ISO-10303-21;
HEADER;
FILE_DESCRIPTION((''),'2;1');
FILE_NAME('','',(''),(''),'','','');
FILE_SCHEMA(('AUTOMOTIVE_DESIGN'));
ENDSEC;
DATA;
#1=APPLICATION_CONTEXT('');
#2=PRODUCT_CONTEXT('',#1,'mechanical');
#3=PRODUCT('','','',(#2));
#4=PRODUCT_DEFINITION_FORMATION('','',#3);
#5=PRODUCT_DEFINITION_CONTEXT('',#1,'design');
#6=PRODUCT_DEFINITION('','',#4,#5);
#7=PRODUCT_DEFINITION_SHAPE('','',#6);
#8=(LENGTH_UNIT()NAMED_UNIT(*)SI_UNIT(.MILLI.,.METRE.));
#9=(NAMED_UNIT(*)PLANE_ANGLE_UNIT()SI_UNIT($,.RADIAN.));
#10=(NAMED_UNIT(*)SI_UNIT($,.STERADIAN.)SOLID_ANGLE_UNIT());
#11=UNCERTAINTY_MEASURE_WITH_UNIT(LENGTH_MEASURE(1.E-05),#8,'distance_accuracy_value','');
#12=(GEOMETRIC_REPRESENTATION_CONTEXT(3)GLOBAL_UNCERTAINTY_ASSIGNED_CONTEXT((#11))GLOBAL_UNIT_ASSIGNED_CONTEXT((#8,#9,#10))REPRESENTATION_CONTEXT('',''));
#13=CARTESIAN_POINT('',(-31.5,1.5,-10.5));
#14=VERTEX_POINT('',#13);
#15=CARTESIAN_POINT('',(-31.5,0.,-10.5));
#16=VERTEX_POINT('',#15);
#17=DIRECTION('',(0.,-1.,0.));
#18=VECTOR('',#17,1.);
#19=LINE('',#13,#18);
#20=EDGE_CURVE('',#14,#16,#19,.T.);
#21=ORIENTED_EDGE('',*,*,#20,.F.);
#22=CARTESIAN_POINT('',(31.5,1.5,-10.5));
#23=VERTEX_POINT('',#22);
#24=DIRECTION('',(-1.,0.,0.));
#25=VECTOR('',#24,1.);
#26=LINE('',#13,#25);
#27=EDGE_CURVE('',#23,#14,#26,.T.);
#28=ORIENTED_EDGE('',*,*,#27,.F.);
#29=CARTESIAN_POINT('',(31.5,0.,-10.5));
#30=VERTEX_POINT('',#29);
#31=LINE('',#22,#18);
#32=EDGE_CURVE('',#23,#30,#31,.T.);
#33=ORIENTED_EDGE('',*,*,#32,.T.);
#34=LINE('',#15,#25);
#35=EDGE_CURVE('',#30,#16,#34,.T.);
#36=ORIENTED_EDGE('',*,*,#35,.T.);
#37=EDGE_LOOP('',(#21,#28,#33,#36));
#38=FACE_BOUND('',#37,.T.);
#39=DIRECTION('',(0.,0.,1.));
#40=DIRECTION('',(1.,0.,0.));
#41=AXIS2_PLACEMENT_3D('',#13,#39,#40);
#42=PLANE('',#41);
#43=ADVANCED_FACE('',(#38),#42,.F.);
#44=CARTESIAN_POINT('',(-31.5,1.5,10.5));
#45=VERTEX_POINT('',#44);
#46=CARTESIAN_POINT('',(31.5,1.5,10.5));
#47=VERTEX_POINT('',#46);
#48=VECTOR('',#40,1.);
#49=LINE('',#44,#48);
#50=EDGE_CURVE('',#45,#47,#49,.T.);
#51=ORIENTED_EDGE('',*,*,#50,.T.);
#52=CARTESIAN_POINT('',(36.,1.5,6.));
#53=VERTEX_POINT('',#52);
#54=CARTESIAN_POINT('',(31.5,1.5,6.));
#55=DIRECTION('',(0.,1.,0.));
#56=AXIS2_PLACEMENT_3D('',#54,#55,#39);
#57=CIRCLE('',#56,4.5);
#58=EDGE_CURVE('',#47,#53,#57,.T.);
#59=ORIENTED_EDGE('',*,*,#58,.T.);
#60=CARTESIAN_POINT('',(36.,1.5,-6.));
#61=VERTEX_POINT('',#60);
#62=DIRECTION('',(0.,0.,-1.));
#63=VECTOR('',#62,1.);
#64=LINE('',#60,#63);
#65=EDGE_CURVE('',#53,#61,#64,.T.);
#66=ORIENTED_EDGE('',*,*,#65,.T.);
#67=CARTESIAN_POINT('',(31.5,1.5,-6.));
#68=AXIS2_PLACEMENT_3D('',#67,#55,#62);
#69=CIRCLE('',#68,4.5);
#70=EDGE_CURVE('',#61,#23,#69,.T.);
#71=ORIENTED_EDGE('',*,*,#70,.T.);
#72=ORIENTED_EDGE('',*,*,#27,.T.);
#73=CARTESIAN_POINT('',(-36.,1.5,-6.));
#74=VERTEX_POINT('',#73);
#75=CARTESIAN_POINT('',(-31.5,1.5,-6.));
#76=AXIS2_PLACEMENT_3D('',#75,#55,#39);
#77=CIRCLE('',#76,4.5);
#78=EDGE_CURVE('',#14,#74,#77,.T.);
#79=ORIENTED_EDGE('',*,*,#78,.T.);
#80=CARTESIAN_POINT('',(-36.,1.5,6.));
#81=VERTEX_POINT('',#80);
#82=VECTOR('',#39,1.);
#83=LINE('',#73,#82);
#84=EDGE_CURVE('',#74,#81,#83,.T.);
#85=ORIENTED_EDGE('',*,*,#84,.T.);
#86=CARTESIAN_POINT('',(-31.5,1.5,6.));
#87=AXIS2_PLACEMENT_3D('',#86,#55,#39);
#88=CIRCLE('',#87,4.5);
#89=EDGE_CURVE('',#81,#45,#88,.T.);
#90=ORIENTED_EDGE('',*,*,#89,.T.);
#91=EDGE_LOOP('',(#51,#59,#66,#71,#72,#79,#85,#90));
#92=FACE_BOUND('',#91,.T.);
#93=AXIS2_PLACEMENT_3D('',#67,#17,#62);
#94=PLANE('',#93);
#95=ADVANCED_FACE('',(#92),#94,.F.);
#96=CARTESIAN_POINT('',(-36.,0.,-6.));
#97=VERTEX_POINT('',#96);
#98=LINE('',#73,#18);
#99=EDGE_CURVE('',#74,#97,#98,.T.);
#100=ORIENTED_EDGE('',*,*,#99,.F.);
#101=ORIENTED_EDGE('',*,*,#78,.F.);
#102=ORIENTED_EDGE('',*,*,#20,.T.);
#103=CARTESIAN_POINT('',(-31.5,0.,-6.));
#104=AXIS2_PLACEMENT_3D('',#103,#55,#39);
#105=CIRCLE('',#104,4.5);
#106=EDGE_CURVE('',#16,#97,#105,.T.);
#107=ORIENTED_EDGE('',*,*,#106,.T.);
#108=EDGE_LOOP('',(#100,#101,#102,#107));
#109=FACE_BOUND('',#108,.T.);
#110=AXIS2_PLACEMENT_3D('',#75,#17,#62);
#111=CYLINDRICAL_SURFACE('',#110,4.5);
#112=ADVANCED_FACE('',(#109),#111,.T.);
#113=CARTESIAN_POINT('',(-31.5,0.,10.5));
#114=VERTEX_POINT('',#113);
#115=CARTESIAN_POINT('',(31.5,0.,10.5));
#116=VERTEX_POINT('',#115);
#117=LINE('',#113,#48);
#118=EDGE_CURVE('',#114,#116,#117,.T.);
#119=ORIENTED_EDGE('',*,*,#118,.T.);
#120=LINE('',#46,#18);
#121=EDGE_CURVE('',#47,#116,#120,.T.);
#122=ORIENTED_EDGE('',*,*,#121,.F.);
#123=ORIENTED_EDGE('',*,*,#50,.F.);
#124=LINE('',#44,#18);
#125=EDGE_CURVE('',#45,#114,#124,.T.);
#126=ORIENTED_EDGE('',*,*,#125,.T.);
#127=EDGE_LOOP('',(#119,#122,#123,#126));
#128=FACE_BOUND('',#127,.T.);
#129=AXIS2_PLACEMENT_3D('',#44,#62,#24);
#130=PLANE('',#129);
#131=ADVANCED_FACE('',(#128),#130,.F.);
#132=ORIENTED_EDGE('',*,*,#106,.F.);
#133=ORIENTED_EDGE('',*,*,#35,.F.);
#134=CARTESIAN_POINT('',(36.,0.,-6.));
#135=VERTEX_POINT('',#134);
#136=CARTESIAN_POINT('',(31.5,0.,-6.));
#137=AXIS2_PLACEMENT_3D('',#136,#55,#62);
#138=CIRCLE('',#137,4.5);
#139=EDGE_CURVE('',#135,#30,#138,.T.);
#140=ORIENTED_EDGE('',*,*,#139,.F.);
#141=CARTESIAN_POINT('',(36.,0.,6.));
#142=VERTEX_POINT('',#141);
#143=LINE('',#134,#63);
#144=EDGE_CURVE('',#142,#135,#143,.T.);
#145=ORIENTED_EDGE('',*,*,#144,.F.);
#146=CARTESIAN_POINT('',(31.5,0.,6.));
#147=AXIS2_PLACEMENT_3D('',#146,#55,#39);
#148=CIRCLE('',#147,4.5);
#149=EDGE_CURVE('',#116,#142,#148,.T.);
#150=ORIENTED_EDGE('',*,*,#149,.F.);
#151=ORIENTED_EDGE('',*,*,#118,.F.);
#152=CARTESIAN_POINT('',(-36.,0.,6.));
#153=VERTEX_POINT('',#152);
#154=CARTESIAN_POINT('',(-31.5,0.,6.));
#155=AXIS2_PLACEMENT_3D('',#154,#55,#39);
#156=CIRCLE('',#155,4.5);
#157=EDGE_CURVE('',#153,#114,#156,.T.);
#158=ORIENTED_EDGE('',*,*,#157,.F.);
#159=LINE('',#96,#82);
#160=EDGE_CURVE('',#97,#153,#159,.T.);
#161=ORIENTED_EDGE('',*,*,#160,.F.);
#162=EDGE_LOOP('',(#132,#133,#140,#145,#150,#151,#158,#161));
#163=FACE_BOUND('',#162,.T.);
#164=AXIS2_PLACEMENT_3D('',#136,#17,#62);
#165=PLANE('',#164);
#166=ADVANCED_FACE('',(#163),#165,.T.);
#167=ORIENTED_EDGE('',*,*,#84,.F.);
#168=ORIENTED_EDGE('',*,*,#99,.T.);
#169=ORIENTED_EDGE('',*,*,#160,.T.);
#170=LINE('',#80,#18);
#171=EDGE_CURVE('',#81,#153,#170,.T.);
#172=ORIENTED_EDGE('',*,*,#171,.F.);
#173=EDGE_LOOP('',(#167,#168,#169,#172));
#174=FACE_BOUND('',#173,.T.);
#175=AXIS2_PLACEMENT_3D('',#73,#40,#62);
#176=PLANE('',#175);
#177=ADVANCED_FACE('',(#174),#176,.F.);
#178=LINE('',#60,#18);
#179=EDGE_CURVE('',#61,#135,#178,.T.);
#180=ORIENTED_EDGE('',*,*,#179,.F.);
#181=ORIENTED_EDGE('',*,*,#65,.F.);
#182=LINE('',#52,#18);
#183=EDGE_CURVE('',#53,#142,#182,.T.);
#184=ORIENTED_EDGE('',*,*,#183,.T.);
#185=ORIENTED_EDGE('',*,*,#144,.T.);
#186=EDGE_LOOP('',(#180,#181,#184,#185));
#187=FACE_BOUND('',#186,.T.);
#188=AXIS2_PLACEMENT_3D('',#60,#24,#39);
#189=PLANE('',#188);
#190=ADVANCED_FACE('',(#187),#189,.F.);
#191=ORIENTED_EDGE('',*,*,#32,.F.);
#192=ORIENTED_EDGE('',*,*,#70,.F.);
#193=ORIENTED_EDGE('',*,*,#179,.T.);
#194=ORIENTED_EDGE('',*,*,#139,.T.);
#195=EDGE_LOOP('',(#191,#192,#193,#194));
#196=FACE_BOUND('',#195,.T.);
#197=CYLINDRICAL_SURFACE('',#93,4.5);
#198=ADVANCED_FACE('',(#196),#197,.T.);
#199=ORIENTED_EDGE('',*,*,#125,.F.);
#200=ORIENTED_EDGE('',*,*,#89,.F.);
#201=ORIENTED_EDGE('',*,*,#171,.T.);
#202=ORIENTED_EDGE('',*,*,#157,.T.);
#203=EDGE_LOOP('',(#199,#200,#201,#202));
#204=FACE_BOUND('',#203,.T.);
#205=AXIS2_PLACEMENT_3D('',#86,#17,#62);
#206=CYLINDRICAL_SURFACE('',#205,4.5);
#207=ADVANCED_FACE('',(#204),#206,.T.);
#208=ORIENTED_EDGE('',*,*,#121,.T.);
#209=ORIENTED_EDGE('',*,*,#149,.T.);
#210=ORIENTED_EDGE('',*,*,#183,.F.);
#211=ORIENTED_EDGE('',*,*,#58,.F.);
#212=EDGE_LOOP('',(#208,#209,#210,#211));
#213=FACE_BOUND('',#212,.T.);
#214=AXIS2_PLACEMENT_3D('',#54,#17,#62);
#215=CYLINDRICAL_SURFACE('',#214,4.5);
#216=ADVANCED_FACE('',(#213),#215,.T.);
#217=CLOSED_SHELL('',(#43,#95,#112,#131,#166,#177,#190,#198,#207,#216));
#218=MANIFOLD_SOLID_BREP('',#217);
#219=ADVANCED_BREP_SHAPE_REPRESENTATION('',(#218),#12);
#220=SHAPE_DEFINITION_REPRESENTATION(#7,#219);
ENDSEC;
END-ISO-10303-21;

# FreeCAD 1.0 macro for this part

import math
import FreeCAD as App
import Part
import Sketcher
from FreeCAD import Vector

doc = App.newDocument("Part")
body = doc.addObject("PartDesign::Body", "Body")

sketch1 = body.newObject("Sketcher::SketchObject", "Sketch")
sketch1.AttachmentSupport = (doc.getObject("XZ_Plane"), [""])
sketch1.MapMode = "FlatFace"
sketch1.addGeometry([
    Part.LineSegment(Vector(31.5, -10.5, 0), Vector(-31.5, -10.5, 0)),
    Part.ArcOfCircle(Part.Circle(Vector(-31.5, -6, 0), Vector(0, 0, 1), 4.5), math.radians(-180), math.radians(-90)),
    Part.LineSegment(Vector(-36, -6, 0), Vector(-36, 6, 0)),
    Part.ArcOfCircle(Part.Circle(Vector(-31.5, 6, 0), Vector(0, 0, 1), 4.5), math.radians(90), math.radians(180)),
    Part.LineSegment(Vector(-31.5, 10.5, 0), Vector(31.5, 10.5, 0)),
    Part.ArcOfCircle(Part.Circle(Vector(31.5, 6, 0), Vector(0, 0, 1), 4.5), math.radians(0), math.radians(90)),
    Part.LineSegment(Vector(36, 6, 0), Vector(36, -6, 0)),
    Part.ArcOfCircle(Part.Circle(Vector(31.5, -6, 0), Vector(0, 0, 1), 4.5), math.radians(-90), math.radians(0)),
], False)
sketch1.addConstraint([
    Sketcher.Constraint("Tangent", 0, 2, 1, 2),
    Sketcher.Constraint("Tangent", 1, 1, 2, 1),
    Sketcher.Constraint("Tangent", 2, 2, 3, 2),
    Sketcher.Constraint("Tangent", 3, 1, 4, 1),
    Sketcher.Constraint("Tangent", 4, 2, 5, 2),
    Sketcher.Constraint("Tangent", 5, 1, 6, 1),
    Sketcher.Constraint("Tangent", 6, 2, 7, 2),
    Sketcher.Constraint("Tangent", 7, 1, 0, 1),
    Sketcher.Constraint("Horizontal", 0),
    Sketcher.Constraint("Vertical", 2),
    Sketcher.Constraint("Horizontal", 4),
    Sketcher.Constraint("Vertical", 6),
    Sketcher.Constraint("Equal", 1, 3),
    Sketcher.Constraint("Equal", 3, 5),
    Sketcher.Constraint("Equal", 5, 7),
    Sketcher.Constraint("Symmetric", 1, 3, 5, 3, -1, 1),
    Sketcher.Constraint("Radius", 1, 4.5),
    Sketcher.Constraint("DistanceX", 0, 2, 0, 1, 63.0),
    Sketcher.Constraint("DistanceY", 2, 1, 2, 2, 12.0),
])
pad1 = body.newObject("PartDesign::Pad", "Pad")
pad1.Profile = sketch1
pad1.Length = 1.5
pad1.Reversed = True

doc.recompute()
